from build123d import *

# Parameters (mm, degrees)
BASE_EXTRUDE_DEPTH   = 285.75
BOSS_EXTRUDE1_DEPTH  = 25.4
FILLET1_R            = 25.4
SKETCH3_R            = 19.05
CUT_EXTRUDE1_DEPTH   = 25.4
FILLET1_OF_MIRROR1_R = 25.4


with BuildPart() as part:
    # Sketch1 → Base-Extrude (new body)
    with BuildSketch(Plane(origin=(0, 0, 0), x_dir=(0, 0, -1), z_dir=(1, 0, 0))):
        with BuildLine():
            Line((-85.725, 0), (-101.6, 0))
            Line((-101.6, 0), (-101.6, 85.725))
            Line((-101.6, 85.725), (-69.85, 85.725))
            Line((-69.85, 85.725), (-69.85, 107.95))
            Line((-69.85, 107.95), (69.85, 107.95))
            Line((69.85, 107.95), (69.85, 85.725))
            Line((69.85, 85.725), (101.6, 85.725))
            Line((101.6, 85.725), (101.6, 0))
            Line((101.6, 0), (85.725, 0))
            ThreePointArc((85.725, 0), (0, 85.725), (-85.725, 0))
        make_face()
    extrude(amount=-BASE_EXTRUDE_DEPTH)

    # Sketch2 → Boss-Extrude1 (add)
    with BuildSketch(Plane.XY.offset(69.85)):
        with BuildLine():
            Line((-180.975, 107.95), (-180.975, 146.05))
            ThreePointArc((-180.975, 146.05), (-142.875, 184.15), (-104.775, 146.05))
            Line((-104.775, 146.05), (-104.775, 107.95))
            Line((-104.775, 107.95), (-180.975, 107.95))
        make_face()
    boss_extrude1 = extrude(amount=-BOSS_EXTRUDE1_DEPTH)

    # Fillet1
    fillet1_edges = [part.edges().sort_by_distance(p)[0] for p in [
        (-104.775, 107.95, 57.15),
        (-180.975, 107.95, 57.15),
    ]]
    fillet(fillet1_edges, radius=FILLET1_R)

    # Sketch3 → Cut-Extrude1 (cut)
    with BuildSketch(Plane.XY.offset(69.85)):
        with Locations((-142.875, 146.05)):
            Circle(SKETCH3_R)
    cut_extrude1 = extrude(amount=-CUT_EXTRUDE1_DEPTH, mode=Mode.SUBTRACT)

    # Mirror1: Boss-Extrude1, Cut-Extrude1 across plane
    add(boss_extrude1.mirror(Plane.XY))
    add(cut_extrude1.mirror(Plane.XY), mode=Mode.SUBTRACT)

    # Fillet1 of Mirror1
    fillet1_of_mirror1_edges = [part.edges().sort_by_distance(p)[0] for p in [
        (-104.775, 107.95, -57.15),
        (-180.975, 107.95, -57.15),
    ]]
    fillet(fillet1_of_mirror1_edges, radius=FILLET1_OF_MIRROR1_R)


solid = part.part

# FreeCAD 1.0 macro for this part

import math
import FreeCAD as App
import Part
import Sketcher
from FreeCAD import Vector
Q = App.Units.Quantity


def edges_at(feature, points):
    """Names of the edges that pass closest to the given points."""
    edges = feature.Shape.Edges
    near = lambda p: min(range(len(edges)), key=lambda i: edges[i].distToShape(Part.Vertex(*p))[0])
    return sorted({f"Edge{near(p) + 1}" for p in points})

doc = App.newDocument("Part")
body = doc.addObject("PartDesign::Body", "Body")

# Sketch on YZ plane
sketch1 = body.newObject("Sketcher::SketchObject", "Sketch")
sketch1.AttachmentSupport = (doc.getObject("YZ_Plane"), [""])
sketch1.MapMode = "FlatFace"
sketch1.addGeometry(Part.LineSegment(Vector(0, 102, 0), Vector(0, 86, 0)), False)
sketch1.addGeometry(Part.ArcOfCircle(Part.Circle(Vector(0, 0, 0), Vector(0, 0, 1), 86), math.radians(-90), math.radians(90)), False)
sketch1.addGeometry(Part.LineSegment(Vector(0, -86, 0), Vector(0, -102, 0)), False)
sketch1.addGeometry(Part.LineSegment(Vector(0, -102, 0), Vector(86, -102, 0)), False)
sketch1.addGeometry(Part.LineSegment(Vector(86, -102, 0), Vector(86, -70, 0)), False)
sketch1.addGeometry(Part.LineSegment(Vector(86, -70, 0), Vector(108, -70, 0)), False)
sketch1.addGeometry(Part.LineSegment(Vector(108, -70, 0), Vector(108, 70, 0)), False)
sketch1.addGeometry(Part.LineSegment(Vector(108, 70, 0), Vector(86, 70, 0)), False)
sketch1.addGeometry(Part.LineSegment(Vector(86, 70, 0), Vector(86, 102, 0)), False)
sketch1.addGeometry(Part.LineSegment(Vector(86, 102, 0), Vector(0, 102, 0)), False)
sketch1.addConstraint(Sketcher.Constraint("Coincident", 0, 2, 1, 2))
sketch1.addConstraint(Sketcher.Constraint("Coincident", 1, 1, 2, 1))
sketch1.addConstraint(Sketcher.Constraint("Coincident", 2, 2, 3, 1))
sketch1.addConstraint(Sketcher.Constraint("Coincident", 3, 2, 4, 1))
sketch1.addConstraint(Sketcher.Constraint("Coincident", 4, 2, 5, 1))
sketch1.addConstraint(Sketcher.Constraint("Coincident", 5, 2, 6, 1))
sketch1.addConstraint(Sketcher.Constraint("Coincident", 6, 2, 7, 1))
sketch1.addConstraint(Sketcher.Constraint("Coincident", 7, 2, 8, 1))
sketch1.addConstraint(Sketcher.Constraint("Coincident", 8, 2, 9, 1))
sketch1.addConstraint(Sketcher.Constraint("Coincident", 9, 2, 0, 1))
sketch1.addConstraint(Sketcher.Constraint("Vertical", 0))
sketch1.addConstraint(Sketcher.Constraint("Vertical", 2))
sketch1.addConstraint(Sketcher.Constraint("Horizontal", 3))
sketch1.addConstraint(Sketcher.Constraint("Vertical", 4))
sketch1.addConstraint(Sketcher.Constraint("Horizontal", 5))
sketch1.addConstraint(Sketcher.Constraint("Vertical", 6))
sketch1.addConstraint(Sketcher.Constraint("Horizontal", 7))
sketch1.addConstraint(Sketcher.Constraint("Vertical", 8))
sketch1.addConstraint(Sketcher.Constraint("Horizontal", 9))
sketch1.addConstraint(Sketcher.Constraint("Coincident", 1, 3, -1, 1))
sketch1.addConstraint(Sketcher.Constraint("Symmetric", 2, 2, 9, 2, -1, 1))
sketch1.addConstraint(Sketcher.Constraint("Symmetric", 4, 2, 7, 2, -1))
sketch1.addConstraint(Sketcher.Constraint("PointOnObject", 0, 2, -2))
sketch1.addConstraint(Sketcher.Constraint("DistanceY", 6, 1, 6, 2, Q("5.5 in")))
sketch1.addConstraint(Sketcher.Constraint("DistanceY", 2, 2, -1, 1, Q("4 in")))
sketch1.addConstraint(Sketcher.Constraint("Radius", 1, Q("3.375 in")))
sketch1.addConstraint(Sketcher.Constraint("DistanceX", 3, 1, 3, 2, Q("3.375 in")))
sketch1.addConstraint(Sketcher.Constraint("DistanceX", 5, 1, 5, 2, Q("0.875 in")))
pad1 = body.newObject("PartDesign::Pad", "Pad")
pad1.Profile = sketch1
pad1.Length = Q("11.25 in")
pad1.Reversed = True

# Sketch on XY plane
sketch2 = body.newObject("Sketcher::SketchObject", "Sketch001")
sketch2.AttachmentSupport = (doc.getObject("XY_Plane"), [""])
sketch2.MapMode = "FlatFace"
sketch2.AttachmentOffset = App.Placement(Vector(0, 0, 2.75 * 25.4), App.Rotation())
sketch2.addGeometry(Part.LineSegment(Vector(-181, 146, 0), Vector(-181, 108, 0)), False)
sketch2.addGeometry(Part.LineSegment(Vector(-181, 108, 0), Vector(-105, 108, 0)), False)
sketch2.addGeometry(Part.LineSegment(Vector(-105, 108, 0), Vector(-105, 146, 0)), False)
sketch2.addGeometry(Part.ArcOfCircle(Part.Circle(Vector(-143, 146, 0), Vector(0, 0, 1), 38), math.radians(0), math.radians(180)), False)
sketch2.addConstraint(Sketcher.Constraint("Coincident", 0, 2, 1, 1))
sketch2.addConstraint(Sketcher.Constraint("Coincident", 1, 2, 2, 1))
sketch2.addConstraint(Sketcher.Constraint("Tangent", 2, 2, 3, 1))
sketch2.addConstraint(Sketcher.Constraint("Tangent", 3, 2, 0, 1))
sketch2.addConstraint(Sketcher.Constraint("Vertical", 0))
sketch2.addConstraint(Sketcher.Constraint("Horizontal", 1))
sketch2.addConstraint(Sketcher.Constraint("Vertical", 2))
sketch2.addConstraint(Sketcher.Constraint("Radius", 3, Q("1.5 in")))
sketch2.addConstraint(Sketcher.Constraint("DistanceY", 0, 2, 0, 1, Q("1.5 in")))
sketch2.addConstraint(Sketcher.Constraint("DistanceY", -1, 1, 3, 3, Q("5.75 in")))
sketch2.addConstraint(Sketcher.Constraint("DistanceX", 3, 3, -1, 1, Q("5.625 in")))
pad2 = body.newObject("PartDesign::Pad", "Pad001")
pad2.Profile = sketch2
pad2.Length = Q("1 in")
pad2.Reversed = True
doc.recompute()

fillet = body.newObject("PartDesign::Fillet", "Fillet")
fillet.Base = (pad2, edges_at(pad2, [(-104.775, 107.95, 57.15), (-180.975, 107.95, 57.15)]))
fillet.Radius = Q("1 in")

# Sketch on XY plane
sketch3 = body.newObject("Sketcher::SketchObject", "Sketch002")
sketch3.AttachmentSupport = (doc.getObject("XY_Plane"), [""])
sketch3.MapMode = "FlatFace"
sketch3.AttachmentOffset = App.Placement(Vector(0, 0, 2.75 * 25.4), App.Rotation())
sketch3.addGeometry(Part.Circle(Vector(-143, 146, 0), Vector(0, 0, 1), 19), False)
sketch3.addConstraint(Sketcher.Constraint("Diameter", 0, Q("1.5 in")))
sketch3.addConstraint(Sketcher.Constraint("DistanceY", -1, 1, 0, 3, Q("5.75 in")))
sketch3.addConstraint(Sketcher.Constraint("DistanceX", 0, 3, -1, 1, Q("5.625 in")))
pocket1 = body.newObject("PartDesign::Pocket", "Pocket")
pocket1.Profile = sketch3
pocket1.Length = Q("1 in")
doc.recompute()

mirrored = body.newObject("PartDesign::Mirrored", "Mirrored")
mirrored.Originals = [pad2, pocket1]
mirrored.MirrorPlane = (doc.getObject("XY_Plane"), [""])
body.Tip = mirrored
doc.recompute()

fillet2 = body.newObject("PartDesign::Fillet", "Fillet001")
fillet2.Base = (mirrored, edges_at(mirrored, [(-104.775, 107.95, -57.15), (-180.975, 107.95, -57.15)]))
fillet2.Radius = Q("1 in")

doc.recompute()
